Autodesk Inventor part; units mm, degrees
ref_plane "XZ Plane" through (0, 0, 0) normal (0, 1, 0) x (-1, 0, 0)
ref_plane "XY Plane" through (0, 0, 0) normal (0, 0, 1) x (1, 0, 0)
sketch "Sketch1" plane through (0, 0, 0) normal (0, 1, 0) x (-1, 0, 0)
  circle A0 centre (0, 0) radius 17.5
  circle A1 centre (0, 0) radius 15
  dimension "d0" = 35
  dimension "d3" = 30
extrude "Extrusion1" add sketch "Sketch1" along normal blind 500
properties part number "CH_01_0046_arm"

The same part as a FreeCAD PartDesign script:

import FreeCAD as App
import Part
import Sketcher

V = App.Vector

doc = App.newDocument("Part")
body = doc.addObject("PartDesign::Body", "Body")

sketch1 = body.newObject("Sketcher::SketchObject", "Sketch")
sketch1.AttachmentSupport = (doc.getObject("XZ_Plane"), [""])
sketch1.MapMode = "FlatFace"
sketch1.addGeometry([
    Part.Circle(V(0, 0, 0), V(0, 0, 1), 18),
    Part.Circle(V(0, 0, 0), V(0, 0, 1), 15),
], False)
sketch1.addConstraint([
    Sketcher.Constraint("Coincident", 0, 3, -1, 1),
    Sketcher.Constraint("Coincident", 1, 3, -1, 1),
    Sketcher.Constraint("Diameter", 0, 35.0),
    Sketcher.Constraint("Diameter", 1, 30.0),
])
pad1 = body.newObject("PartDesign::Pad", "Pad")
pad1.Profile = sketch1
pad1.Length = 500
pad1.Reversed = True

doc.recompute()
